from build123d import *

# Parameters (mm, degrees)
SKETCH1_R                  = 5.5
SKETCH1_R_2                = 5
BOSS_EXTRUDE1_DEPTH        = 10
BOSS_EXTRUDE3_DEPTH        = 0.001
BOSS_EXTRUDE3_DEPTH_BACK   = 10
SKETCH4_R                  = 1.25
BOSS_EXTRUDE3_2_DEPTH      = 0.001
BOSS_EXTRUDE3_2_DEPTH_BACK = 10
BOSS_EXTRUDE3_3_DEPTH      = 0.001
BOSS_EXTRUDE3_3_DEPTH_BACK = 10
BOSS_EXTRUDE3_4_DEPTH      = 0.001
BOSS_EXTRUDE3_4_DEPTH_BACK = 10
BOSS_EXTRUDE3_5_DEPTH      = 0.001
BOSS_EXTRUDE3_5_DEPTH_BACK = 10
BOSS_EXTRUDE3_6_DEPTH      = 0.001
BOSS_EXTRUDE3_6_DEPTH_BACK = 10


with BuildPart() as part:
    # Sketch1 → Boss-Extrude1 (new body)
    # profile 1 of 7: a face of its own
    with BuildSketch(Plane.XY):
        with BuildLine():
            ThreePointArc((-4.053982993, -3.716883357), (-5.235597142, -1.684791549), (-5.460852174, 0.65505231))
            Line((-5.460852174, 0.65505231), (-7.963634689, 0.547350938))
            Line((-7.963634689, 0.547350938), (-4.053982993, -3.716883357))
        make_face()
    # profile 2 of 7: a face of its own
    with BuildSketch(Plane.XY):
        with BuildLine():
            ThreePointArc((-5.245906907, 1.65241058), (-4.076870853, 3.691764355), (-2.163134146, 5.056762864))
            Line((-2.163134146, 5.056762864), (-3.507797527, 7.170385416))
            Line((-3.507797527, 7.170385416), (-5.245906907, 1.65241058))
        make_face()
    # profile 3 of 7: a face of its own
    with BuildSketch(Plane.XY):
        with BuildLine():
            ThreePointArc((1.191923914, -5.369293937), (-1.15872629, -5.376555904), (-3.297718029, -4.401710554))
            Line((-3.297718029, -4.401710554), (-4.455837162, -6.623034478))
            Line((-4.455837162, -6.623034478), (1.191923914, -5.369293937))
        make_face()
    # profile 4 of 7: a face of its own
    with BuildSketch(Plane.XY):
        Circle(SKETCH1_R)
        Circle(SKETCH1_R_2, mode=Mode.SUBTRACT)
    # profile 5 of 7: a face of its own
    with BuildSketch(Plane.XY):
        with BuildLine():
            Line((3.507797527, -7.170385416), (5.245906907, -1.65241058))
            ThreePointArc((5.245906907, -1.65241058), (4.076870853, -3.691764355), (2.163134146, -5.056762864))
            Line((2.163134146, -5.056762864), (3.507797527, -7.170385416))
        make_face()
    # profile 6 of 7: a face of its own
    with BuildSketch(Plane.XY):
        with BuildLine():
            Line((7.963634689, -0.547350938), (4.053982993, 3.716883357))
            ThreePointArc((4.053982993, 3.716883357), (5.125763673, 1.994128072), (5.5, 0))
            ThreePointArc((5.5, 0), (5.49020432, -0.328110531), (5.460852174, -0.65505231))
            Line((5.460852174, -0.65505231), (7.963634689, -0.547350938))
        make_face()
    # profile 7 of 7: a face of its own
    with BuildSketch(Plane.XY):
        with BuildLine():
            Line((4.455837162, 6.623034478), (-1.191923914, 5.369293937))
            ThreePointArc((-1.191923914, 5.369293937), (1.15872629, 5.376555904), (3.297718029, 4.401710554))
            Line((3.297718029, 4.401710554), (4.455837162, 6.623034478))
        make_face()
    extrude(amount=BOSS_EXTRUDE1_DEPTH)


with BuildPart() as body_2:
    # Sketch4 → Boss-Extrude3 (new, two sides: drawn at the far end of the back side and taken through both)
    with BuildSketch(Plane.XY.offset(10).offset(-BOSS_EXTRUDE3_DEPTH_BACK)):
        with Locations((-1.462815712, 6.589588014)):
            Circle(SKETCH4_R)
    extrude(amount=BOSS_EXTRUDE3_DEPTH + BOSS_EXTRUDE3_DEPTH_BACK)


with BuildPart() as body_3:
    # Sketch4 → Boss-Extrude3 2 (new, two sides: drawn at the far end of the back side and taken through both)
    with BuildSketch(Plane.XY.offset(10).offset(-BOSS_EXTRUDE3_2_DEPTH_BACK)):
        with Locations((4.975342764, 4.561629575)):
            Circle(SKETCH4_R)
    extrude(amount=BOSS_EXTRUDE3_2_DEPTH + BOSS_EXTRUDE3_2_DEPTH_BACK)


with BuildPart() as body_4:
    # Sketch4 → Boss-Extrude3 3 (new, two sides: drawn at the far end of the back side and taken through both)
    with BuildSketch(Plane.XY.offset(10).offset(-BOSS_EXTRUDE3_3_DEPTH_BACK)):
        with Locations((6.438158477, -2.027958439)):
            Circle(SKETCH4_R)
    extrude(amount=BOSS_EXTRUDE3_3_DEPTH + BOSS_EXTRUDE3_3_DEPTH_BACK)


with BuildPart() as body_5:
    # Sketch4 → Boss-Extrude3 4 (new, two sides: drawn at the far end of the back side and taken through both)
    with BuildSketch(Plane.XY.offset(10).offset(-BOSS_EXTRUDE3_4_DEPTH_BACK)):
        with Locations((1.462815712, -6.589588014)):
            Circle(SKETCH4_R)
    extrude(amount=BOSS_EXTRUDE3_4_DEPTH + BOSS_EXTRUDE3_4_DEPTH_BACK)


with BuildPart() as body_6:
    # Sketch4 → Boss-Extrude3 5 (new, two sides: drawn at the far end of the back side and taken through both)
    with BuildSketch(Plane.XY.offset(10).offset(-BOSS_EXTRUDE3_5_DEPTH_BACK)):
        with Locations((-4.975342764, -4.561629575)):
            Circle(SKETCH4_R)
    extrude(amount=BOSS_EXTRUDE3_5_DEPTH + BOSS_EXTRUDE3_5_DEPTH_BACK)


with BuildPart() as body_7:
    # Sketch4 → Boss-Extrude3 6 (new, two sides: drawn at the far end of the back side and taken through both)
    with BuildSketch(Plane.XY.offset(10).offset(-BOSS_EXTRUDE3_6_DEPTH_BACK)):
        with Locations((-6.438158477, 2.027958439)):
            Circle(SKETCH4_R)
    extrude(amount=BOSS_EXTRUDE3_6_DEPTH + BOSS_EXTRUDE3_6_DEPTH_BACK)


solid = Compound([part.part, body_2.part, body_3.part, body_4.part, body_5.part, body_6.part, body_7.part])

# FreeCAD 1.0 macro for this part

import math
import FreeCAD as App
import Part
import Sketcher

V = App.Vector
Q = App.Units.Quantity

doc = App.newDocument("Part")
body = doc.addObject("PartDesign::Body", "Body")

# Sketch on XY plane
sketch1 = body.newObject("Sketcher::SketchObject", "Sketch")
sketch1.AttachmentSupport = (doc.getObject("XY_Plane"), [""])
sketch1.MapMode = "FlatFace"
sketch1.addGeometry(Part.LineSegment(V(-5.460852, 0.655052, 0), V(-7.963635, 0.547351, 0)), False)
sketch1.addGeometry(Part.LineSegment(V(-7.963635, 0.547351, 0), V(-4.053983, -3.716883, 0)), False)
sketch1.addGeometry(Part.ArcOfCircle(Part.Circle(V(0, 0, 0), V(0, 0, 1), 5.5), math.radians(-137.48393), math.radians(-126.840188)), False)
sketch1.addGeometry(Part.LineSegment(V(-3.297718, -4.401711, 0), V(-4.455837, -6.623034, 0)), False)
sketch1.addGeometry(Part.LineSegment(V(-4.455837, -6.623034, 0), V(1.191924, -5.369294, 0)), False)
sketch1.addGeometry(Part.ArcOfCircle(Part.Circle(V(0, 0, 0), V(0, 0, 1), 5.5), math.radians(-77.48393), math.radians(-66.840188)), False)
sketch1.addGeometry(Part.LineSegment(V(2.163134, -5.056763, 0), V(3.507798, -7.170385, 0)), False)
sketch1.addGeometry(Part.LineSegment(V(3.507798, -7.170385, 0), V(5.245907, -1.652411, 0)), False)
sketch1.addGeometry(Part.ArcOfCircle(Part.Circle(V(0, 0, 0), V(0, 0, 1), 5.5), math.radians(-17.48393), math.radians(-6.840188)), False)
sketch1.addGeometry(Part.LineSegment(V(5.460852, -0.655052, 0), V(7.963635, -0.547351, 0)), False)
sketch1.addGeometry(Part.LineSegment(V(7.963635, -0.547351, 0), V(4.053983, 3.716883, 0)), False)
sketch1.addGeometry(Part.ArcOfCircle(Part.Circle(V(0, 0, 0), V(0, 0, 1), 5.5), math.radians(42.51607), math.radians(53.159812)), False)
sketch1.addGeometry(Part.LineSegment(V(3.297718, 4.401711, 0), V(4.455837, 6.623034, 0)), False)
sketch1.addGeometry(Part.LineSegment(V(4.455837, 6.623034, 0), V(-1.191924, 5.369294, 0)), False)
sketch1.addGeometry(Part.ArcOfCircle(Part.Circle(V(0, 0, 0), V(0, 0, 1), 5.5), math.radians(102.51607), math.radians(113.159812)), False)
sketch1.addGeometry(Part.LineSegment(V(-2.163134, 5.056763, 0), V(-3.507798, 7.170385, 0)), False)
sketch1.addGeometry(Part.LineSegment(V(-3.507798, 7.170385, 0), V(-5.245907, 1.652411, 0)), False)
sketch1.addGeometry(Part.ArcOfCircle(Part.Circle(V(0, 0, 0), V(0, 0, 1), 5.5), math.radians(162.51607), math.radians(173.159812)), False)
sketch1.addGeometry(Part.Circle(V(0, 0, 0), V(0, 0, 1), 5), False)
sketch1.addConstraint(Sketcher.Constraint("Coincident", 0, 2, 1, 1))
sketch1.addConstraint(Sketcher.Constraint("Tangent", 1, 2, 2, 1))
sketch1.addConstraint(Sketcher.Constraint("Coincident", 2, 2, 3, 1))
sketch1.addConstraint(Sketcher.Constraint("Coincident", 3, 2, 4, 1))
sketch1.addConstraint(Sketcher.Constraint("Tangent", 4, 2, 5, 1))
sketch1.addConstraint(Sketcher.Constraint("Coincident", 5, 2, 6, 1))
sketch1.addConstraint(Sketcher.Constraint("Coincident", 6, 2, 7, 1))
sketch1.addConstraint(Sketcher.Constraint("Tangent", 7, 2, 8, 1))
sketch1.addConstraint(Sketcher.Constraint("Coincident", 8, 2, 9, 1))
sketch1.addConstraint(Sketcher.Constraint("Coincident", 9, 2, 10, 1))
sketch1.addConstraint(Sketcher.Constraint("Tangent", 10, 2, 11, 1))
sketch1.addConstraint(Sketcher.Constraint("Coincident", 11, 2, 12, 1))
sketch1.addConstraint(Sketcher.Constraint("Coincident", 12, 2, 13, 1))
sketch1.addConstraint(Sketcher.Constraint("Tangent", 13, 2, 14, 1))
sketch1.addConstraint(Sketcher.Constraint("Coincident", 14, 2, 15, 1))
sketch1.addConstraint(Sketcher.Constraint("Coincident", 15, 2, 16, 1))
sketch1.addConstraint(Sketcher.Constraint("Tangent", 16, 2, 17, 1))
sketch1.addConstraint(Sketcher.Constraint("Coincident", 17, 2, 0, 1))
sketch1.addConstraint(Sketcher.Constraint("Coincident", 2, 3, -1, 1))
sketch1.addConstraint(Sketcher.Constraint("Coincident", 5, 3, -1, 1))
sketch1.addConstraint(Sketcher.Constraint("Coincident", 8, 3, -1, 1))
sketch1.addConstraint(Sketcher.Constraint("Coincident", 11, 3, -1, 1))
sketch1.addConstraint(Sketcher.Constraint("Coincident", 14, 3, -1, 1))
sketch1.addConstraint(Sketcher.Constraint("Coincident", 17, 3, -1, 1))
sketch1.addConstraint(Sketcher.Constraint("Coincident", 18, 3, -1, 1))
sketch1.addConstraint(Sketcher.Constraint("Equal", 2, 5))
sketch1.addConstraint(Sketcher.Constraint("Equal", 5, 8))
sketch1.addConstraint(Sketcher.Constraint("Equal", 8, 11))
sketch1.addConstraint(Sketcher.Constraint("Equal", 11, 14))
sketch1.addConstraint(Sketcher.Constraint("Equal", 14, 17))
sketch1.addConstraint(Sketcher.Constraint("Symmetric", 0, 2, 9, 2, -1, 1))
sketch1.addConstraint(Sketcher.Constraint("Symmetric", 3, 2, 12, 2, -1, 1))
sketch1.addConstraint(Sketcher.Constraint("Symmetric", 6, 2, 15, 2, -1, 1))
sketch1.addConstraint(Sketcher.Constraint("Parallel", 0, 9))
sketch1.addConstraint(Sketcher.Constraint("Parallel", 3, 12))
sketch1.addConstraint(Sketcher.Constraint("Parallel", 6, 15))
sketch1.addConstraint(Sketcher.Constraint("Equal", 0, 3))
sketch1.addConstraint(Sketcher.Constraint("Equal", 1, 4))
sketch1.addConstraint(Sketcher.Constraint("Equal", 3, 6))
sketch1.addConstraint(Sketcher.Constraint("Equal", 4, 7))
sketch1.addConstraint(Sketcher.Constraint("Diameter", 18, Q("10 mm")))
sketch1.addConstraint(Sketcher.Constraint("Radius", 2, Q("5.5 mm")))
sketch1.addConstraint(Sketcher.Constraint("Distance", 0, Q("2.505099 mm")))
sketch1.addConstraint(Sketcher.Constraint("DistanceY", 8, 2, 9, 2, Q("0.107701 mm")))
sketch1.addConstraint(Sketcher.Constraint("DistanceX", 5, 2, 9, 2, Q("5.800501 mm")))
sketch1.addConstraint(Sketcher.Constraint("DistanceY", -1, 1, 0, 2, Q("0.547351 mm")))
sketch1.addConstraint(Sketcher.Constraint("DistanceX", 2, 2, -1, 1, Q("3.297718 mm")))
pad1 = body.newObject("PartDesign::Pad", "Pad")
pad1.Profile = sketch1
pad1.Length = 10
body2 = doc.addObject("PartDesign::Body", "Body001")

# Sketch on XY plane
sketch2 = body2.newObject("Sketcher::SketchObject", "Sketch001")
sketch2.AttachmentSupport = (doc.getObject("XY_Plane001"), [""])
sketch2.MapMode = "FlatFace"
sketch2.AttachmentOffset = App.Placement(V(0, 0, 10), App.Rotation())
sketch2.addGeometry(Part.Circle(V(-1.462816, 6.589588, 0), V(0, 0, 1), 1.25), False)
sketch2.addConstraint(Sketcher.Constraint("Diameter", 0, Q("2.5 mm")))
sketch2.addConstraint(Sketcher.Constraint("DistanceY", -1, 1, 0, 3, Q("6.589588 mm")))
sketch2.addConstraint(Sketcher.Constraint("DistanceX", 0, 3, -1, 1, Q("1.462816 mm")))
pad2 = body2.newObject("PartDesign::Pad", "Pad001")
pad2.Profile = sketch2
pad2.Type = "TwoLengths"
pad2.Length = 0.001
pad2.Length2 = 10
body3 = doc.addObject("PartDesign::Body", "Body002")

# Sketch on XY plane
sketch3 = body3.newObject("Sketcher::SketchObject", "Sketch002")
sketch3.AttachmentSupport = (doc.getObject("XY_Plane002"), [""])
sketch3.MapMode = "FlatFace"
sketch3.AttachmentOffset = App.Placement(V(0, 0, 10), App.Rotation())
sketch3.addGeometry(Part.Circle(V(4.975343, 4.56163, 0), V(0, 0, 1), 1.25), False)
sketch3.addConstraint(Sketcher.Constraint("Diameter", 0, Q("2.5 mm")))
sketch3.addConstraint(Sketcher.Constraint("DistanceY", -1, 1, 0, 3, Q("4.56163 mm")))
sketch3.addConstraint(Sketcher.Constraint("DistanceX", -1, 1, 0, 3, Q("4.975343 mm")))
pad3 = body3.newObject("PartDesign::Pad", "Pad002")
pad3.Profile = sketch3
pad3.Type = "TwoLengths"
pad3.Length = 0.001
pad3.Length2 = 10
body4 = doc.addObject("PartDesign::Body", "Body003")

# Sketch on XY plane
sketch4 = body4.newObject("Sketcher::SketchObject", "Sketch003")
sketch4.AttachmentSupport = (doc.getObject("XY_Plane003"), [""])
sketch4.MapMode = "FlatFace"
sketch4.AttachmentOffset = App.Placement(V(0, 0, 10), App.Rotation())
sketch4.addGeometry(Part.Circle(V(6.438158, -2.027958, 0), V(0, 0, 1), 1.25), False)
sketch4.addConstraint(Sketcher.Constraint("Diameter", 0, Q("2.5 mm")))
sketch4.addConstraint(Sketcher.Constraint("DistanceX", -1, 1, 0, 3, Q("6.438158 mm")))
sketch4.addConstraint(Sketcher.Constraint("DistanceY", 0, 3, -1, 1, Q("2.027958 mm")))
pad4 = body4.newObject("PartDesign::Pad", "Pad003")
pad4.Profile = sketch4
pad4.Type = "TwoLengths"
pad4.Length = 0.001
pad4.Length2 = 10
body5 = doc.addObject("PartDesign::Body", "Body004")

# Sketch on XY plane
sketch5 = body5.newObject("Sketcher::SketchObject", "Sketch004")
sketch5.AttachmentSupport = (doc.getObject("XY_Plane004"), [""])
sketch5.MapMode = "FlatFace"
sketch5.AttachmentOffset = App.Placement(V(0, 0, 10), App.Rotation())
sketch5.addGeometry(Part.Circle(V(1.462816, -6.589588, 0), V(0, 0, 1), 1.25), False)
sketch5.addConstraint(Sketcher.Constraint("Diameter", 0, Q("2.5 mm")))
sketch5.addConstraint(Sketcher.Constraint("DistanceY", 0, 3, -1, 1, Q("6.589588 mm")))
sketch5.addConstraint(Sketcher.Constraint("DistanceX", -1, 1, 0, 3, Q("1.462816 mm")))
pad5 = body5.newObject("PartDesign::Pad", "Pad004")
pad5.Profile = sketch5
pad5.Type = "TwoLengths"
pad5.Length = 0.001
pad5.Length2 = 10
body6 = doc.addObject("PartDesign::Body", "Body005")

# Sketch on XY plane
sketch6 = body6.newObject("Sketcher::SketchObject", "Sketch005")
sketch6.AttachmentSupport = (doc.getObject("XY_Plane005"), [""])
sketch6.MapMode = "FlatFace"
sketch6.AttachmentOffset = App.Placement(V(0, 0, 10), App.Rotation())
sketch6.addGeometry(Part.Circle(V(-4.975343, -4.56163, 0), V(0, 0, 1), 1.25), False)
sketch6.addConstraint(Sketcher.Constraint("Diameter", 0, Q("2.5 mm")))
sketch6.addConstraint(Sketcher.Constraint("DistanceY", 0, 3, -1, 1, Q("4.56163 mm")))
sketch6.addConstraint(Sketcher.Constraint("DistanceX", 0, 3, -1, 1, Q("4.975343 mm")))
pad6 = body6.newObject("PartDesign::Pad", "Pad005")
pad6.Profile = sketch6
pad6.Type = "TwoLengths"
pad6.Length = 0.001
pad6.Length2 = 10
body7 = doc.addObject("PartDesign::Body", "Body006")

# Sketch on XY plane
sketch7 = body7.newObject("Sketcher::SketchObject", "Sketch006")
sketch7.AttachmentSupport = (doc.getObject("XY_Plane006"), [""])
sketch7.MapMode = "FlatFace"
sketch7.AttachmentOffset = App.Placement(V(0, 0, 10), App.Rotation())
sketch7.addGeometry(Part.Circle(V(-6.438158, 2.027958, 0), V(0, 0, 1), 1.25), False)
sketch7.addConstraint(Sketcher.Constraint("Diameter", 0, Q("2.5 mm")))
sketch7.addConstraint(Sketcher.Constraint("DistanceX", 0, 3, -1, 1, Q("6.438158 mm")))
sketch7.addConstraint(Sketcher.Constraint("DistanceY", -1, 1, 0, 3, Q("2.027958 mm")))
pad7 = body7.newObject("PartDesign::Pad", "Pad006")
pad7.Profile = sketch7
pad7.Type = "TwoLengths"
pad7.Length = 0.001
pad7.Length2 = 10

doc.recompute()
